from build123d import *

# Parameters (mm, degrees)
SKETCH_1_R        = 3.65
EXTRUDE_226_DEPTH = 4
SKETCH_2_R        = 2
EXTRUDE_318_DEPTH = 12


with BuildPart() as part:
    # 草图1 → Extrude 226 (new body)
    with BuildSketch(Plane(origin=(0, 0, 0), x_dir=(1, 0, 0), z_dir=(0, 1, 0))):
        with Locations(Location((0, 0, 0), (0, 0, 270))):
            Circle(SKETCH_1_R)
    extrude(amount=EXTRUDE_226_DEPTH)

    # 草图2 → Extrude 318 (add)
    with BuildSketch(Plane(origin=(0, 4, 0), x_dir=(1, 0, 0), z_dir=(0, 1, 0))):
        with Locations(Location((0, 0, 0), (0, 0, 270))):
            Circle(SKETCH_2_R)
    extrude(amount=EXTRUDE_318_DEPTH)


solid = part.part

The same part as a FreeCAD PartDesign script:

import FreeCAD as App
import Part
import Sketcher

V = App.Vector

doc = App.newDocument("Part")
body = doc.addObject("PartDesign::Body", "Body")

# Sketch on XZ plane
sketch1 = body.newObject("Sketcher::SketchObject", "Sketch")
sketch1.AttachmentSupport = (doc.getObject("XZ_Plane"), [""])
sketch1.MapMode = "FlatFace"
sketch1.addGeometry(Part.Circle(V(0, 0, 0), V(0, 0, 1), 3.6), False)
sketch1.addConstraint([
    Sketcher.Constraint("Coincident", 0, 3, -1, 1),
    Sketcher.Constraint("Diameter", 0, 7.3),
])
pad1 = body.newObject("PartDesign::Pad", "Pad")
pad1.Profile = sketch1
pad1.Length = 4
pad1.Reversed = True

# Sketch on XZ plane
sketch2 = body.newObject("Sketcher::SketchObject", "Sketch001")
sketch2.AttachmentSupport = (doc.getObject("XZ_Plane"), [""])
sketch2.MapMode = "FlatFace"
sketch2.AttachmentOffset = App.Placement(V(0, 0, -4), App.Rotation())
sketch2.addGeometry(Part.Circle(V(0, 0, 0), V(0, 0, 1), 2), False)
sketch2.addConstraint([
    Sketcher.Constraint("Coincident", 0, 3, -1, 1),
    Sketcher.Constraint("Diameter", 0, 4.0),
])
pad2 = body.newObject("PartDesign::Pad", "Pad001")
pad2.Profile = sketch2
pad2.Length = 12
pad2.Reversed = True

doc.recompute()
